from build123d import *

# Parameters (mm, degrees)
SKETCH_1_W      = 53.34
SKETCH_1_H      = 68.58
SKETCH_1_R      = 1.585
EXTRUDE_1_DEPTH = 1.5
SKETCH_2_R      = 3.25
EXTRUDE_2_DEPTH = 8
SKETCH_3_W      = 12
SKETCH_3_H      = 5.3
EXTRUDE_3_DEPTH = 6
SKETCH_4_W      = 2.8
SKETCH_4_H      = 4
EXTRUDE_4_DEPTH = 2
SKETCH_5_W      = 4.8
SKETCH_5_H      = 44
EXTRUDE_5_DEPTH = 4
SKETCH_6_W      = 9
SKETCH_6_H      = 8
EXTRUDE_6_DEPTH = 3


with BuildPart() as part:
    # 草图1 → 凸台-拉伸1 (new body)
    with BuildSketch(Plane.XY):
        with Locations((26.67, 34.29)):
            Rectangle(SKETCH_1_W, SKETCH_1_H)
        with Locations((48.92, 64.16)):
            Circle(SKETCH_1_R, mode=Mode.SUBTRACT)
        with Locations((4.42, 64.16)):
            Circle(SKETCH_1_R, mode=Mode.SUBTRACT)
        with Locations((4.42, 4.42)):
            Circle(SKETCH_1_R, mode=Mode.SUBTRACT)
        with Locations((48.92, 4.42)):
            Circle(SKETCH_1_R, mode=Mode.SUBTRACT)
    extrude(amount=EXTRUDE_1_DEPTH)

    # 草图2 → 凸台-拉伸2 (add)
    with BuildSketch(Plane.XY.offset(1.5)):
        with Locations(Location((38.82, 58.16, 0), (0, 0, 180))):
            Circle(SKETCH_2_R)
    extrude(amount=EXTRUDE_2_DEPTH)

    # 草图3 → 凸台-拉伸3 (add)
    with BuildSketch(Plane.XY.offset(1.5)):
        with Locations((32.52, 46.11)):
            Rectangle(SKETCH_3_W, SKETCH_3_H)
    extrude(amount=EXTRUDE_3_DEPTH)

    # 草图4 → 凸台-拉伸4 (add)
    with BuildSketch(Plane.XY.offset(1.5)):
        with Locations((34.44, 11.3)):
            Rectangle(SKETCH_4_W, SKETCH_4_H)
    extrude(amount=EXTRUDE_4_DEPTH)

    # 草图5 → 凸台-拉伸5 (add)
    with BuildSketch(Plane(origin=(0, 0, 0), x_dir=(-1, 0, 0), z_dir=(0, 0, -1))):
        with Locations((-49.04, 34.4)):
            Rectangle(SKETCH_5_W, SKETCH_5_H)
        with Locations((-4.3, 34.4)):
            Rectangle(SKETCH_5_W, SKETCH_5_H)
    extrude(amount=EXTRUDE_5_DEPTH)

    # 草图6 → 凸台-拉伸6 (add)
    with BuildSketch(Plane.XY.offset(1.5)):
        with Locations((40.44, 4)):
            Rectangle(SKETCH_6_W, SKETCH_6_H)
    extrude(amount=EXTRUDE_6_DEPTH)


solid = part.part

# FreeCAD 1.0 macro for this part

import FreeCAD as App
import Part
import Sketcher

V = App.Vector
Q = App.Units.Quantity

doc = App.newDocument("Part")
body = doc.addObject("PartDesign::Body", "Body")

# Sketch on XY plane
sketch1 = doc.addObject("Sketcher::SketchObject", "Sketch")
body.addObject(sketch1)
sketch1.AttachmentSupport = (doc.XY_Plane, [""])
sketch1.MapMode = "FlatFace"
sketch1.addGeometry(Part.LineSegment(V(0, 68.6, 0), V(0, 0, 0)), False)
sketch1.addGeometry(Part.LineSegment(V(0, 0, 0), V(53.3, 0, 0)), False)
sketch1.addGeometry(Part.LineSegment(V(53.3, 0, 0), V(53.3, 68.6, 0)), False)
sketch1.addGeometry(Part.LineSegment(V(53.3, 68.6, 0), V(0, 68.6, 0)), False)
sketch1.addGeometry(Part.Circle(V(4.4, 4.4, 0), V(0, 0, 1), 1.6), False)
sketch1.addGeometry(Part.Circle(V(48.9, 4.4, 0), V(0, 0, 1), 1.6), False)
sketch1.addGeometry(Part.Circle(V(4.4, 64.2, 0), V(0, 0, 1), 1.6), False)
sketch1.addGeometry(Part.Circle(V(48.9, 64.2, 0), V(0, 0, 1), 1.6), False)
sketch1.addConstraint(Sketcher.Constraint("Coincident", 0, 2, 1, 1))
sketch1.addConstraint(Sketcher.Constraint("Coincident", 1, 2, 2, 1))
sketch1.addConstraint(Sketcher.Constraint("Coincident", 2, 2, 3, 1))
sketch1.addConstraint(Sketcher.Constraint("Coincident", 3, 2, 0, 1))
sketch1.addConstraint(Sketcher.Constraint("Vertical", 0))
sketch1.addConstraint(Sketcher.Constraint("Horizontal", 1))
sketch1.addConstraint(Sketcher.Constraint("Vertical", 2))
sketch1.addConstraint(Sketcher.Constraint("Horizontal", 3))
sketch1.addConstraint(Sketcher.Constraint("Coincident", 0, 2, -1, 1))
sketch1.addConstraint(Sketcher.Constraint("Equal", 4, 5))
sketch1.addConstraint(Sketcher.Constraint("Equal", 5, 6))
sketch1.addConstraint(Sketcher.Constraint("Equal", 6, 7))
sketch1.addConstraint(Sketcher.Constraint("Horizontal", 4, 3, 5, 3))
sketch1.addConstraint(Sketcher.Constraint("Horizontal", 6, 3, 7, 3))
sketch1.addConstraint(Sketcher.Constraint("Vertical", 4, 3, 6, 3))
sketch1.addConstraint(Sketcher.Constraint("Vertical", 5, 3, 7, 3))
sketch1.addConstraint(Sketcher.Constraint("Diameter", 4, Q("3.17 mm")))
sketch1.addConstraint(Sketcher.Constraint("DistanceX", 1, 1, 1, 2, Q("53.34 mm")))
sketch1.addConstraint(Sketcher.Constraint("DistanceY", 0, 2, 0, 1, Q("68.58 mm")))
sketch1.addConstraint(Sketcher.Constraint("DistanceX", 4, 3, 5, 3, Q("44.5 mm")))
sketch1.addConstraint(Sketcher.Constraint("DistanceX", -1, 1, 4, 3, Q("4.42 mm")))
sketch1.addConstraint(Sketcher.Constraint("DistanceY", -1, 1, 4, 3, Q("4.42 mm")))
sketch1.addConstraint(Sketcher.Constraint("DistanceY", -1, 1, 6, 3, Q("64.16 mm")))
pad1 = doc.addObject("PartDesign::Pad", "Pad")
body.addObject(pad1)
pad1.Profile = sketch1
pad1.Length = 1.5

# Sketch on XY plane
sketch2 = doc.addObject("Sketcher::SketchObject", "Sketch001")
body.addObject(sketch2)
sketch2.AttachmentSupport = (doc.XY_Plane, [""])
sketch2.MapMode = "FlatFace"
sketch2.AttachmentOffset = App.Placement(V(0, 0, 1.5), App.Rotation())
sketch2.addGeometry(Part.Circle(V(38.8, 58.2, 0), V(0, 0, 1), 3.2), False)
sketch2.addConstraint(Sketcher.Constraint("Diameter", 0, Q("6.5 mm")))
sketch2.addConstraint(Sketcher.Constraint("DistanceX", -1, 1, 0, 3, Q("38.82 mm")))
sketch2.addConstraint(Sketcher.Constraint("DistanceY", -1, 1, 0, 3, Q("58.16 mm")))
pad2 = doc.addObject("PartDesign::Pad", "Pad001")
body.addObject(pad2)
pad2.Profile = sketch2
pad2.Length = 8

# Sketch on XY plane
sketch3 = doc.addObject("Sketcher::SketchObject", "Sketch002")
body.addObject(sketch3)
sketch3.AttachmentSupport = (doc.XY_Plane, [""])
sketch3.MapMode = "FlatFace"
sketch3.AttachmentOffset = App.Placement(V(0, 0, 1.5), App.Rotation())
sketch3.addGeometry(Part.LineSegment(V(27, 49, 0), V(27, 43, 0)), False)
sketch3.addGeometry(Part.LineSegment(V(27, 43, 0), V(39, 43, 0)), False)
sketch3.addGeometry(Part.LineSegment(V(39, 43, 0), V(39, 49, 0)), False)
sketch3.addGeometry(Part.LineSegment(V(39, 49, 0), V(27, 49, 0)), False)
sketch3.addConstraint(Sketcher.Constraint("Coincident", 0, 2, 1, 1))
sketch3.addConstraint(Sketcher.Constraint("Coincident", 1, 2, 2, 1))
sketch3.addConstraint(Sketcher.Constraint("Coincident", 2, 2, 3, 1))
sketch3.addConstraint(Sketcher.Constraint("Coincident", 3, 2, 0, 1))
sketch3.addConstraint(Sketcher.Constraint("Vertical", 0))
sketch3.addConstraint(Sketcher.Constraint("Horizontal", 1))
sketch3.addConstraint(Sketcher.Constraint("Vertical", 2))
sketch3.addConstraint(Sketcher.Constraint("Horizontal", 3))
sketch3.addConstraint(Sketcher.Constraint("DistanceX", 1, 1, 1, 2, Q("12 mm")))
sketch3.addConstraint(Sketcher.Constraint("DistanceY", 0, 2, 0, 1, Q("5.3 mm")))
sketch3.addConstraint(Sketcher.Constraint("DistanceX", -1, 1, 0, 2, Q("26.52 mm")))
sketch3.addConstraint(Sketcher.Constraint("DistanceY", -1, 1, 0, 2, Q("43.46 mm")))
pad3 = doc.addObject("PartDesign::Pad", "Pad002")
body.addObject(pad3)
pad3.Profile = sketch3
pad3.Length = 6

# Sketch on XY plane
sketch4 = doc.addObject("Sketcher::SketchObject", "Sketch003")
body.addObject(sketch4)
sketch4.AttachmentSupport = (doc.XY_Plane, [""])
sketch4.MapMode = "FlatFace"
sketch4.AttachmentOffset = App.Placement(V(0, 0, 1.5), App.Rotation())
sketch4.addGeometry(Part.LineSegment(V(33, 13.3, 0), V(33, 9.3, 0)), False)
sketch4.addGeometry(Part.LineSegment(V(33, 9.3, 0), V(35.8, 9.3, 0)), False)
sketch4.addGeometry(Part.LineSegment(V(35.8, 9.3, 0), V(35.8, 13.3, 0)), False)
sketch4.addGeometry(Part.LineSegment(V(35.8, 13.3, 0), V(33, 13.3, 0)), False)
sketch4.addConstraint(Sketcher.Constraint("Coincident", 0, 2, 1, 1))
sketch4.addConstraint(Sketcher.Constraint("Coincident", 1, 2, 2, 1))
sketch4.addConstraint(Sketcher.Constraint("Coincident", 2, 2, 3, 1))
sketch4.addConstraint(Sketcher.Constraint("Coincident", 3, 2, 0, 1))
sketch4.addConstraint(Sketcher.Constraint("Vertical", 0))
sketch4.addConstraint(Sketcher.Constraint("Horizontal", 1))
sketch4.addConstraint(Sketcher.Constraint("Vertical", 2))
sketch4.addConstraint(Sketcher.Constraint("Horizontal", 3))
sketch4.addConstraint(Sketcher.Constraint("DistanceY", 0, 2, 0, 1, Q("4 mm")))
sketch4.addConstraint(Sketcher.Constraint("DistanceX", 1, 1, 1, 2, Q("2.8 mm")))
sketch4.addConstraint(Sketcher.Constraint("DistanceY", -1, 1, 0, 2, Q("9.3 mm")))
sketch4.addConstraint(Sketcher.Constraint("DistanceX", -1, 1, 0, 2, Q("33.04 mm")))
pad4 = doc.addObject("PartDesign::Pad", "Pad003")
body.addObject(pad4)
pad4.Profile = sketch4
pad4.Length = 2

# Sketch on XY plane
sketch5 = doc.addObject("Sketcher::SketchObject", "Sketch004")
body.addObject(sketch5)
sketch5.AttachmentSupport = (doc.XY_Plane, [""])
sketch5.MapMode = "FlatFace"
sketch5.addGeometry(Part.LineSegment(V(51.4, 56.4, 0), V(51.4, 12.4, 0)), False)
sketch5.addGeometry(Part.LineSegment(V(51.4, 12.4, 0), V(46.6, 12.4, 0)), False)
sketch5.addGeometry(Part.LineSegment(V(46.6, 12.4, 0), V(46.6, 56.4, 0)), False)
sketch5.addGeometry(Part.LineSegment(V(46.6, 56.4, 0), V(51.4, 56.4, 0)), False)
sketch5.addGeometry(Part.LineSegment(V(6.7, 56.4, 0), V(6.7, 12.4, 0)), False)
sketch5.addGeometry(Part.LineSegment(V(6.7, 12.4, 0), V(1.9, 12.4, 0)), False)
sketch5.addGeometry(Part.LineSegment(V(1.9, 12.4, 0), V(1.9, 56.4, 0)), False)
sketch5.addGeometry(Part.LineSegment(V(1.9, 56.4, 0), V(6.7, 56.4, 0)), False)
sketch5.addConstraint(Sketcher.Constraint("Coincident", 0, 2, 1, 1))
sketch5.addConstraint(Sketcher.Constraint("Coincident", 1, 2, 2, 1))
sketch5.addConstraint(Sketcher.Constraint("Coincident", 2, 2, 3, 1))
sketch5.addConstraint(Sketcher.Constraint("Coincident", 3, 2, 0, 1))
sketch5.addConstraint(Sketcher.Constraint("Coincident", 4, 2, 5, 1))
sketch5.addConstraint(Sketcher.Constraint("Coincident", 5, 2, 6, 1))
sketch5.addConstraint(Sketcher.Constraint("Coincident", 6, 2, 7, 1))
sketch5.addConstraint(Sketcher.Constraint("Coincident", 7, 2, 4, 1))
sketch5.addConstraint(Sketcher.Constraint("Vertical", 0))
sketch5.addConstraint(Sketcher.Constraint("Horizontal", 1))
sketch5.addConstraint(Sketcher.Constraint("Vertical", 2))
sketch5.addConstraint(Sketcher.Constraint("Horizontal", 3))
sketch5.addConstraint(Sketcher.Constraint("Vertical", 4))
sketch5.addConstraint(Sketcher.Constraint("Horizontal", 5))
sketch5.addConstraint(Sketcher.Constraint("Vertical", 6))
sketch5.addConstraint(Sketcher.Constraint("Horizontal", 7))
sketch5.addConstraint(Sketcher.Constraint("Horizontal", 1, 2, 4, 2))
sketch5.addConstraint(Sketcher.Constraint("Horizontal", 3, 2, 6, 2))
sketch5.addConstraint(Sketcher.Constraint("Equal", 3, 5))
sketch5.addConstraint(Sketcher.Constraint("DistanceY", 0, 2, 0, 1, Q("44 mm")))
sketch5.addConstraint(Sketcher.Constraint("DistanceX", 1, 2, 1, 1, Q("4.8 mm")))
sketch5.addConstraint(Sketcher.Constraint("DistanceY", -1, 1, 0, 2, Q("12.4 mm")))
sketch5.addConstraint(Sketcher.Constraint("DistanceX", -1, 1, 4, 2, Q("6.7 mm")))
sketch5.addConstraint(Sketcher.Constraint("DistanceX", -1, 1, 0, 2, Q("51.44 mm")))
pad5 = doc.addObject("PartDesign::Pad", "Pad004")
body.addObject(pad5)
pad5.Profile = sketch5
pad5.Length = 4
pad5.Reversed = True

# Sketch on XY plane
sketch6 = doc.addObject("Sketcher::SketchObject", "Sketch005")
body.addObject(sketch6)
sketch6.AttachmentSupport = (doc.XY_Plane, [""])
sketch6.MapMode = "FlatFace"
sketch6.AttachmentOffset = App.Placement(V(0, 0, 1.5), App.Rotation())
sketch6.addGeometry(Part.LineSegment(V(36, 8, 0), V(36, 0, 0)), False)
sketch6.addGeometry(Part.LineSegment(V(36, 0, 0), V(45, 0, 0)), False)
sketch6.addGeometry(Part.LineSegment(V(45, 0, 0), V(45, 8, 0)), False)
sketch6.addGeometry(Part.LineSegment(V(45, 8, 0), V(36, 8, 0)), False)
sketch6.addConstraint(Sketcher.Constraint("Coincident", 0, 2, 1, 1))
sketch6.addConstraint(Sketcher.Constraint("Coincident", 1, 2, 2, 1))
sketch6.addConstraint(Sketcher.Constraint("Coincident", 2, 2, 3, 1))
sketch6.addConstraint(Sketcher.Constraint("Coincident", 3, 2, 0, 1))
sketch6.addConstraint(Sketcher.Constraint("Vertical", 0))
sketch6.addConstraint(Sketcher.Constraint("Horizontal", 1))
sketch6.addConstraint(Sketcher.Constraint("Vertical", 2))
sketch6.addConstraint(Sketcher.Constraint("Horizontal", 3))
sketch6.addConstraint(Sketcher.Constraint("PointOnObject", 0, 2, -1))
sketch6.addConstraint(Sketcher.Constraint("DistanceX", 1, 1, 1, 2, Q("9 mm")))
sketch6.addConstraint(Sketcher.Constraint("DistanceY", 0, 2, 0, 1, Q("8 mm")))
sketch6.addConstraint(Sketcher.Constraint("DistanceX", -1, 1, 0, 2, Q("35.94 mm")))
pad6 = doc.addObject("PartDesign::Pad", "Pad005")
body.addObject(pad6)
pad6.Profile = sketch6
pad6.Length = 3

doc.recompute()
